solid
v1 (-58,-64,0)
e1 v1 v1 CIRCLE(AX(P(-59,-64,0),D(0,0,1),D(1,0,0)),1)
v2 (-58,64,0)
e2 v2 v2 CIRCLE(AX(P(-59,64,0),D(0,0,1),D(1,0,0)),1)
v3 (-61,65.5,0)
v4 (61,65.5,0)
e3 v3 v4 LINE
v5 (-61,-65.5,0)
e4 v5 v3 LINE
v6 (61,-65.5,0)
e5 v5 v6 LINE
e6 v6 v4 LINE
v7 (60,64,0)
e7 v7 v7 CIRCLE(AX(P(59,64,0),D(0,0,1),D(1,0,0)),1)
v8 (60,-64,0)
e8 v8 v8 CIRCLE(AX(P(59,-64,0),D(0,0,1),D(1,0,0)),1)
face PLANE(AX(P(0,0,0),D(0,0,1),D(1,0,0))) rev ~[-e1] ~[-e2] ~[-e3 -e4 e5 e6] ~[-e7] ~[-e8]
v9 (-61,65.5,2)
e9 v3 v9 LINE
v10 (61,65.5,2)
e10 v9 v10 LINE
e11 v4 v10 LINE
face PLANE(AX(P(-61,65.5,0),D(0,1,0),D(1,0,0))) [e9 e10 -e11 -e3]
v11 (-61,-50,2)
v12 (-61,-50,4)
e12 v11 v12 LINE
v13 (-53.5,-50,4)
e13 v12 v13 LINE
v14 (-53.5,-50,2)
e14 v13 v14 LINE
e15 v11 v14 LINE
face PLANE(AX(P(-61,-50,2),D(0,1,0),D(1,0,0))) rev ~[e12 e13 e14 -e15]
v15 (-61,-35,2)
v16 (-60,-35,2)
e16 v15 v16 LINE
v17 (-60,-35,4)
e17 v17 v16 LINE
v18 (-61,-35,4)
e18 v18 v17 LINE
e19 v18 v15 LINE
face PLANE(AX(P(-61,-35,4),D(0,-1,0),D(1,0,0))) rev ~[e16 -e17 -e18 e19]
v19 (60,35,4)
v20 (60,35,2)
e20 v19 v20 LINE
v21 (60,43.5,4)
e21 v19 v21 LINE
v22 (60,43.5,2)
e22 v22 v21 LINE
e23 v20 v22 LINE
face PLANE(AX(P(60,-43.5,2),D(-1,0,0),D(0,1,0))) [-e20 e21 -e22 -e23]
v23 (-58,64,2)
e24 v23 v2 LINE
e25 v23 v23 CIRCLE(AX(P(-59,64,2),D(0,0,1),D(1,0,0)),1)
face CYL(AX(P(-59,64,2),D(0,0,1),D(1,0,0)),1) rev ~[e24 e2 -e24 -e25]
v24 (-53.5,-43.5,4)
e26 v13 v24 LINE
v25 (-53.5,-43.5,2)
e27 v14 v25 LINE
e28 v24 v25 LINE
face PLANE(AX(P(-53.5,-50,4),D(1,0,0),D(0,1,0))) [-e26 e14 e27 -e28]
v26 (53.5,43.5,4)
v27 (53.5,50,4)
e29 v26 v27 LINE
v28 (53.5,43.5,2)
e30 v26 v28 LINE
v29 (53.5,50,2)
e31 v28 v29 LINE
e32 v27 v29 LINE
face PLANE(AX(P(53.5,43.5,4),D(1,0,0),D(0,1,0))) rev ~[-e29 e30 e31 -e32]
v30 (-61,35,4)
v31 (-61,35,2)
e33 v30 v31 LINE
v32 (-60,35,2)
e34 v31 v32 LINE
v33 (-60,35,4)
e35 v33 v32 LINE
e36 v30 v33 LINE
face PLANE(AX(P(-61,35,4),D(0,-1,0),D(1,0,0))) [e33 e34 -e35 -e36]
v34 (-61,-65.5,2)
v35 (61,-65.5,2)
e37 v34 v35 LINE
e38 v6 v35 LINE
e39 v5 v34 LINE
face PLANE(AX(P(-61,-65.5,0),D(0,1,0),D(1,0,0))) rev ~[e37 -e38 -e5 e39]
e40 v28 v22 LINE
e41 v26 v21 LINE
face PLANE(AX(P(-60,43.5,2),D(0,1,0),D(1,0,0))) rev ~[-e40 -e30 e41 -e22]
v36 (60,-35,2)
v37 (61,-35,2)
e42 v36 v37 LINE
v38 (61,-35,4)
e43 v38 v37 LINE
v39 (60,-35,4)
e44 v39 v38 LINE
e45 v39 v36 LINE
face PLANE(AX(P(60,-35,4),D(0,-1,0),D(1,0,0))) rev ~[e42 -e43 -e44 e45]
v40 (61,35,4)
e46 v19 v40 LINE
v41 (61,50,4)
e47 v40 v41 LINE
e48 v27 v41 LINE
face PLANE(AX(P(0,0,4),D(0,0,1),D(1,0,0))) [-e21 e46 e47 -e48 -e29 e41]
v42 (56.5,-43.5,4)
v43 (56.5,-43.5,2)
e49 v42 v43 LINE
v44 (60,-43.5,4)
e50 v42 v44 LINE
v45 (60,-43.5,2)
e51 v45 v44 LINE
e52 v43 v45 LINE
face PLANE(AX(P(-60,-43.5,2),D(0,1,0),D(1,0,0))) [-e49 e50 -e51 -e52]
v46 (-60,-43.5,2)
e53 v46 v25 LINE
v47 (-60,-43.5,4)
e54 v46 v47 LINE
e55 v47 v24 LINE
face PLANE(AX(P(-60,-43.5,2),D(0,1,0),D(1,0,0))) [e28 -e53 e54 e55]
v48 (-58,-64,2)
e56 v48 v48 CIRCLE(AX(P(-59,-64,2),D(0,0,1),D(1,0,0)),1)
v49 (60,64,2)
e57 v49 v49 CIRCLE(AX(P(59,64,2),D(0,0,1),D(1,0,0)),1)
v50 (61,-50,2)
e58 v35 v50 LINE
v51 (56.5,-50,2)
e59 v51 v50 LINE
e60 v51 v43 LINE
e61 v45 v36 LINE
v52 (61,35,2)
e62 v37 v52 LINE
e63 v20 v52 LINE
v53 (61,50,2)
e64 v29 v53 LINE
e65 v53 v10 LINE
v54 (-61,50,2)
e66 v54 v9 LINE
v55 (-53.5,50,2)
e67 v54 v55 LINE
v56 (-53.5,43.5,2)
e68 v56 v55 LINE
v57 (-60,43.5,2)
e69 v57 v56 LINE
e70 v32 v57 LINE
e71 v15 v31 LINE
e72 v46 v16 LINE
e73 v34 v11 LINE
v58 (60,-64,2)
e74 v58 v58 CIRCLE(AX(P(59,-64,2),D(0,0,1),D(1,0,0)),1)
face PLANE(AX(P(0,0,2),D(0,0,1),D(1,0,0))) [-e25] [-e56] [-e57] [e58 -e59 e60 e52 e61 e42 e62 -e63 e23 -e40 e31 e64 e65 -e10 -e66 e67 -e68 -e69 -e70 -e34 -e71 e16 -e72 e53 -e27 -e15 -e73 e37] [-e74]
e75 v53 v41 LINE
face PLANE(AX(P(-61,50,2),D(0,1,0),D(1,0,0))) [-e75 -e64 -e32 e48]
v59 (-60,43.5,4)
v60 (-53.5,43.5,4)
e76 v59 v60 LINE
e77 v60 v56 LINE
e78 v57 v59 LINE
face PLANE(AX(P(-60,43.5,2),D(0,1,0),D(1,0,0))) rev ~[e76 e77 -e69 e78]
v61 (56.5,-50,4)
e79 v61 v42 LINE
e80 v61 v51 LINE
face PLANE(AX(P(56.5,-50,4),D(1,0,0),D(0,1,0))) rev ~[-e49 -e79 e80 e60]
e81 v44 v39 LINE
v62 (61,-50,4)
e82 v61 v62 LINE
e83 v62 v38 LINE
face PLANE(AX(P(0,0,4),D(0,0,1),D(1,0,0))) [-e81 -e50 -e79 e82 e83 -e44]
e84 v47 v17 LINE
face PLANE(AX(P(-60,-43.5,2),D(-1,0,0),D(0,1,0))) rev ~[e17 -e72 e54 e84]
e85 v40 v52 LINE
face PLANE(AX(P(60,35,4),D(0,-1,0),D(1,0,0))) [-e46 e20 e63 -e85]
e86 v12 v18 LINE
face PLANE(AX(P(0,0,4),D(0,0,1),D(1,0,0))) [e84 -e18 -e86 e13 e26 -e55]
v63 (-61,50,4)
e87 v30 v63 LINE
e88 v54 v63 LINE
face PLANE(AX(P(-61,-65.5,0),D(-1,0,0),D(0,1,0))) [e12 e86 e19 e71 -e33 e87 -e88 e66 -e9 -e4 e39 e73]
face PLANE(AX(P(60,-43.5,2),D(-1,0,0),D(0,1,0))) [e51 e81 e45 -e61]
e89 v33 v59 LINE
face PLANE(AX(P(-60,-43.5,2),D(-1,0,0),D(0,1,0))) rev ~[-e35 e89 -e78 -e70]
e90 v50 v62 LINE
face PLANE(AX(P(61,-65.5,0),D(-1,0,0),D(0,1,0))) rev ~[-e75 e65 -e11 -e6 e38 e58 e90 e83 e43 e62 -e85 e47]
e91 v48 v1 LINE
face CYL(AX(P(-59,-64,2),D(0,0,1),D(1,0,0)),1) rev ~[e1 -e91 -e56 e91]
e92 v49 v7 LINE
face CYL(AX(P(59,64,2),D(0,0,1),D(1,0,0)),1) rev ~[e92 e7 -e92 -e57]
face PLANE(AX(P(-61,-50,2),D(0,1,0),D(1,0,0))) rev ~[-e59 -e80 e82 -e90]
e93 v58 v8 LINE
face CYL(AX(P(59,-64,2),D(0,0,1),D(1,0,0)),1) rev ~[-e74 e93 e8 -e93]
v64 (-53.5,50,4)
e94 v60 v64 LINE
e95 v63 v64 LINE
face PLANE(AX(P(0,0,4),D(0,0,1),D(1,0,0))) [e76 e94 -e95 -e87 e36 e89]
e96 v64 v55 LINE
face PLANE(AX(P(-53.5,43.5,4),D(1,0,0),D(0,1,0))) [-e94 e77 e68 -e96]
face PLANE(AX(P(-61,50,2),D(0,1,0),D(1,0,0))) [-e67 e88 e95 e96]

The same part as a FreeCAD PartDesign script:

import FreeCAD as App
import Part
import Sketcher

V = App.Vector
Q = App.Units.Quantity

doc = App.newDocument("Part")
body = doc.addObject("PartDesign::Body", "Body")

# Sketch on XY plane
sketch1 = doc.addObject("Sketcher::SketchObject", "Sketch")
body.addObject(sketch1)
sketch1.AttachmentSupport = (doc.XY_Plane, [""])
sketch1.MapMode = "FlatFace"
sketch1.addGeometry(Part.LineSegment(V(-61, 66, 0), V(-61, -66, 0)), False)
sketch1.addGeometry(Part.LineSegment(V(-61, -66, 0), V(61, -66, 0)), False)
sketch1.addGeometry(Part.LineSegment(V(61, -66, 0), V(61, 66, 0)), False)
sketch1.addGeometry(Part.LineSegment(V(61, 66, 0), V(-61, 66, 0)), False)
sketch1.addConstraint(Sketcher.Constraint("Coincident", 0, 2, 1, 1))
sketch1.addConstraint(Sketcher.Constraint("Coincident", 1, 2, 2, 1))
sketch1.addConstraint(Sketcher.Constraint("Coincident", 2, 2, 3, 1))
sketch1.addConstraint(Sketcher.Constraint("Coincident", 3, 2, 0, 1))
sketch1.addConstraint(Sketcher.Constraint("Vertical", 0))
sketch1.addConstraint(Sketcher.Constraint("Horizontal", 1))
sketch1.addConstraint(Sketcher.Constraint("Vertical", 2))
sketch1.addConstraint(Sketcher.Constraint("Horizontal", 3))
sketch1.addConstraint(Sketcher.Constraint("Symmetric", 0, 2, 2, 2, -1, 1))
sketch1.addConstraint(Sketcher.Constraint("DistanceX", 1, 1, 1, 2, Q("122 mm")))
sketch1.addConstraint(Sketcher.Constraint("DistanceY", 0, 2, 0, 1, Q("131 mm")))
pad1 = doc.addObject("PartDesign::Pad", "Pad")
body.addObject(pad1)
pad1.Profile = sketch1
pad1.Length = 2

# Sketch on XY plane
sketch2 = doc.addObject("Sketcher::SketchObject", "Sketch001")
body.addObject(sketch2)
sketch2.AttachmentSupport = (doc.XY_Plane, [""])
sketch2.MapMode = "FlatFace"
sketch2.AttachmentOffset = App.Placement(V(0, 0, 2), App.Rotation())
sketch2.addGeometry(Part.Circle(V(59, 64, 0), V(0, 0, 1), 1), False)
sketch2.addGeometry(Part.Circle(V(59, -64, 0), V(0, 0, 1), 1), False)
sketch2.addGeometry(Part.Circle(V(-59, -64, 0), V(0, 0, 1), 1), False)
sketch2.addGeometry(Part.Circle(V(-59, 64, 0), V(0, 0, 1), 1), False)
sketch2.addConstraint(Sketcher.Constraint("Equal", 0, 1))
sketch2.addConstraint(Sketcher.Constraint("Equal", 1, 2))
sketch2.addConstraint(Sketcher.Constraint("Equal", 2, 3))
sketch2.addConstraint(Sketcher.Constraint("Symmetric", 0, 3, 2, 3, -1, 1))
sketch2.addConstraint(Sketcher.Constraint("Symmetric", 1, 3, 3, 3, -1, 1))
sketch2.addConstraint(Sketcher.Constraint("Symmetric", 1, 3, 2, 3, -2))
sketch2.addConstraint(Sketcher.Constraint("Diameter", 0, Q("2 mm")))
sketch2.addConstraint(Sketcher.Constraint("DistanceX", -1, 1, 0, 3, Q("59 mm")))
sketch2.addConstraint(Sketcher.Constraint("DistanceY", -1, 1, 0, 3, Q("64 mm")))
pocket1 = doc.addObject("PartDesign::Pocket", "Pocket")
body.addObject(pocket1)
pocket1.Profile = sketch2
pocket1.Type = "ThroughAll"

# Sketch on XY plane
sketch3 = doc.addObject("Sketcher::SketchObject", "Sketch002")
body.addObject(sketch3)
sketch3.AttachmentSupport = (doc.XY_Plane, [""])
sketch3.MapMode = "FlatFace"
sketch3.AttachmentOffset = App.Placement(V(0, 0, 2), App.Rotation())
sketch3.addGeometry(Part.LineSegment(V(-61, 50, 0), V(-61, -50, 0)), False)
sketch3.addGeometry(Part.LineSegment(V(-61, -50, 0), V(61, -50, 0)), False)
sketch3.addGeometry(Part.LineSegment(V(61, -50, 0), V(61, 50, 0)), False)
sketch3.addGeometry(Part.LineSegment(V(61, 50, 0), V(-61, 50, 0)), False)
sketch3.addGeometry(Part.LineSegment(V(60, -44, 0), V(-60, -44, 0)), False)
sketch3.addGeometry(Part.LineSegment(V(-60, -44, 0), V(-60, 44, 0)), False)
sketch3.addGeometry(Part.LineSegment(V(-60, 44, 0), V(60, 44, 0)), False)
sketch3.addGeometry(Part.LineSegment(V(60, 44, 0), V(60, -44, 0)), False)
sketch3.addConstraint(Sketcher.Constraint("Coincident", 0, 2, 1, 1))
sketch3.addConstraint(Sketcher.Constraint("Coincident", 1, 2, 2, 1))
sketch3.addConstraint(Sketcher.Constraint("Coincident", 2, 2, 3, 1))
sketch3.addConstraint(Sketcher.Constraint("Coincident", 3, 2, 0, 1))
sketch3.addConstraint(Sketcher.Constraint("Coincident", 4, 2, 5, 1))
sketch3.addConstraint(Sketcher.Constraint("Coincident", 5, 2, 6, 1))
sketch3.addConstraint(Sketcher.Constraint("Coincident", 6, 2, 7, 1))
sketch3.addConstraint(Sketcher.Constraint("Coincident", 7, 2, 4, 1))
sketch3.addConstraint(Sketcher.Constraint("Vertical", 0))
sketch3.addConstraint(Sketcher.Constraint("Horizontal", 1))
sketch3.addConstraint(Sketcher.Constraint("Vertical", 2))
sketch3.addConstraint(Sketcher.Constraint("Horizontal", 3))
sketch3.addConstraint(Sketcher.Constraint("Horizontal", 4))
sketch3.addConstraint(Sketcher.Constraint("Vertical", 5))
sketch3.addConstraint(Sketcher.Constraint("Horizontal", 6))
sketch3.addConstraint(Sketcher.Constraint("Vertical", 7))
sketch3.addConstraint(Sketcher.Constraint("Symmetric", 0, 2, 2, 2, -1, 1))
sketch3.addConstraint(Sketcher.Constraint("Symmetric", 4, 2, 6, 2, -1, 1))
sketch3.addConstraint(Sketcher.Constraint("DistanceX", 1, 1, 1, 2, Q("122 mm")))
sketch3.addConstraint(Sketcher.Constraint("DistanceX", 4, 2, 4, 1, Q("120 mm")))
sketch3.addConstraint(Sketcher.Constraint("DistanceY", 0, 2, 0, 1, Q("100 mm")))
sketch3.addConstraint(Sketcher.Constraint("DistanceY", 5, 1, 5, 2, Q("87 mm")))
pad2 = doc.addObject("PartDesign::Pad", "Pad001")
body.addObject(pad2)
pad2.Profile = sketch3
pad2.Length = 2

# Sketch on XY plane
sketch4 = doc.addObject("Sketcher::SketchObject", "Sketch003")
body.addObject(sketch4)
sketch4.AttachmentSupport = (doc.XY_Plane, [""])
sketch4.MapMode = "FlatFace"
sketch4.AttachmentOffset = App.Placement(V(0, 0, 4), App.Rotation())
sketch4.addGeometry(Part.LineSegment(V(-53.5, 50, 0), V(-53.5, 43.5, 0)), False)
sketch4.addGeometry(Part.LineSegment(V(-53.5, 43.5, 0), V(53.5, 43.5, 0)), False)
sketch4.addGeometry(Part.LineSegment(V(53.5, 43.5, 0), V(53.5, 50, 0)), False)
sketch4.addGeometry(Part.LineSegment(V(53.5, 50, 0), V(-53.5, 50, 0)), False)
sketch4.addGeometry(Part.LineSegment(V(60, 35, 0), V(60, -35, 0)), False)
sketch4.addGeometry(Part.LineSegment(V(60, -35, 0), V(61, -35, 0)), False)
sketch4.addGeometry(Part.LineSegment(V(61, -35, 0), V(61, 35, 0)), False)
sketch4.addGeometry(Part.LineSegment(V(61, 35, 0), V(60, 35, 0)), False)
sketch4.addGeometry(Part.LineSegment(V(-53.5, -43.5, 0), V(-53.5, -50, 0)), False)
sketch4.addGeometry(Part.LineSegment(V(-53.5, -50, 0), V(56.5, -50, 0)), False)
sketch4.addGeometry(Part.LineSegment(V(56.5, -50, 0), V(56.5, -43.5, 0)), False)
sketch4.addGeometry(Part.LineSegment(V(56.5, -43.5, 0), V(-53.5, -43.5, 0)), False)
sketch4.addGeometry(Part.LineSegment(V(-61, 35, 0), V(-61, -35, 0)), False)
sketch4.addGeometry(Part.LineSegment(V(-61, -35, 0), V(-60, -35, 0)), False)
sketch4.addGeometry(Part.LineSegment(V(-60, -35, 0), V(-60, 35, 0)), False)
sketch4.addGeometry(Part.LineSegment(V(-60, 35, 0), V(-61, 35, 0)), False)
sketch4.addConstraint(Sketcher.Constraint("Coincident", 0, 2, 1, 1))
sketch4.addConstraint(Sketcher.Constraint("Coincident", 1, 2, 2, 1))
sketch4.addConstraint(Sketcher.Constraint("Coincident", 2, 2, 3, 1))
sketch4.addConstraint(Sketcher.Constraint("Coincident", 3, 2, 0, 1))
sketch4.addConstraint(Sketcher.Constraint("Coincident", 4, 2, 5, 1))
sketch4.addConstraint(Sketcher.Constraint("Coincident", 5, 2, 6, 1))
sketch4.addConstraint(Sketcher.Constraint("Coincident", 6, 2, 7, 1))
sketch4.addConstraint(Sketcher.Constraint("Coincident", 7, 2, 4, 1))
sketch4.addConstraint(Sketcher.Constraint("Coincident", 8, 2, 9, 1))
sketch4.addConstraint(Sketcher.Constraint("Coincident", 9, 2, 10, 1))
sketch4.addConstraint(Sketcher.Constraint("Coincident", 10, 2, 11, 1))
sketch4.addConstraint(Sketcher.Constraint("Coincident", 11, 2, 8, 1))
sketch4.addConstraint(Sketcher.Constraint("Coincident", 12, 2, 13, 1))
sketch4.addConstraint(Sketcher.Constraint("Coincident", 13, 2, 14, 1))
sketch4.addConstraint(Sketcher.Constraint("Coincident", 14, 2, 15, 1))
sketch4.addConstraint(Sketcher.Constraint("Coincident", 15, 2, 12, 1))
sketch4.addConstraint(Sketcher.Constraint("Vertical", 0))
sketch4.addConstraint(Sketcher.Constraint("Horizontal", 1))
sketch4.addConstraint(Sketcher.Constraint("Vertical", 2))
sketch4.addConstraint(Sketcher.Constraint("Horizontal", 3))
sketch4.addConstraint(Sketcher.Constraint("Vertical", 4))
sketch4.addConstraint(Sketcher.Constraint("Horizontal", 5))
sketch4.addConstraint(Sketcher.Constraint("Vertical", 6))
sketch4.addConstraint(Sketcher.Constraint("Horizontal", 7))
sketch4.addConstraint(Sketcher.Constraint("Vertical", 8))
sketch4.addConstraint(Sketcher.Constraint("Horizontal", 9))
sketch4.addConstraint(Sketcher.Constraint("Vertical", 10))
sketch4.addConstraint(Sketcher.Constraint("Horizontal", 11))
sketch4.addConstraint(Sketcher.Constraint("Vertical", 12))
sketch4.addConstraint(Sketcher.Constraint("Horizontal", 13))
sketch4.addConstraint(Sketcher.Constraint("Vertical", 14))
sketch4.addConstraint(Sketcher.Constraint("Horizontal", 15))
sketch4.addConstraint(Sketcher.Constraint("Symmetric", 2, 2, 8, 2, -1, 1))
sketch4.addConstraint(Sketcher.Constraint("Symmetric", 6, 2, 12, 2, -1, 1))
sketch4.addConstraint(Sketcher.Constraint("Symmetric", 4, 2, 14, 2, -1, 1))
sketch4.addConstraint(Sketcher.Constraint("Symmetric", 0, 2, 11, 2, -1))
sketch4.addConstraint(Sketcher.Constraint("Horizontal", 5, 2, 12, 2))
sketch4.addConstraint(Sketcher.Constraint("DistanceX", 1, 1, 1, 2, Q("107 mm")))
sketch4.addConstraint(Sketcher.Constraint("DistanceX", 5, 1, 5, 2, Q("1 mm")))
sketch4.addConstraint(Sketcher.Constraint("DistanceX", 9, 1, 9, 2, Q("110 mm")))
sketch4.addConstraint(Sketcher.Constraint("DistanceY", 4, 2, 4, 1, Q("70 mm")))
sketch4.addConstraint(Sketcher.Constraint("DistanceY", 0, 2, 0, 1, Q("6.5 mm")))
sketch4.addConstraint(Sketcher.Constraint("DistanceY", -1, 1, 2, 2, Q("50 mm")))
sketch4.addConstraint(Sketcher.Constraint("DistanceX", -1, 1, 4, 2, Q("60 mm")))
pocket2 = doc.addObject("PartDesign::Pocket", "Pocket001")
body.addObject(pocket2)
pocket2.Profile = sketch4
pocket2.Length = 2

doc.recompute()
